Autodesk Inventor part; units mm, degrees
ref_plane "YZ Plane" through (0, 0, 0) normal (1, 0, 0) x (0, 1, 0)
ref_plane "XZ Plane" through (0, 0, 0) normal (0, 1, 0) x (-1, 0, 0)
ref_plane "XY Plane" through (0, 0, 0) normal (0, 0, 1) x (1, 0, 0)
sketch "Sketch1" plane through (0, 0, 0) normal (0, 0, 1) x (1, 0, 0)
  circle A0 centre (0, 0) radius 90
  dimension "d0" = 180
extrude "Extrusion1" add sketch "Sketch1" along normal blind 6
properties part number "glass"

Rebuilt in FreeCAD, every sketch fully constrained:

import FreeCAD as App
import Part
import Sketcher

doc = App.newDocument("Part")
params = doc.addObject("Spreadsheet::Sheet", "Params")
for row, (alias, value) in enumerate([
    ("sketch1_diameter", "180 mm"),
    ("pad1_length", "6 mm"),
], start=1):
    params.set(f"A{row}", alias)
    params.set(f"B{row}", "=" + value)
    params.setAlias(f"B{row}", alias)

body = doc.addObject("PartDesign::Body", "Body")

# Sketch on XY plane
sketch1 = doc.addObject("Sketcher::SketchObject", "Sketch")
body.addObject(sketch1)
sketch1.AttachmentSupport = (doc.XY_Plane, [""])
sketch1.MapMode = "FlatFace"
sketch1.addGeometry(Part.Circle(App.Vector(0, 0, 0), App.Vector(0, 0, 1), 90), False)
sketch1.addConstraint([
    Sketcher.Constraint("Coincident", 0, 3, -1, 1),
    Sketcher.Constraint("Diameter", 0, 180.0),
])
sketch1.setExpression("Constraints[1]", "Params.sketch1_diameter")
pad1 = doc.addObject("PartDesign::Pad", "Pad")
body.addObject(pad1)
pad1.Profile = sketch1
pad1.setExpression("Length", "Params.pad1_length")

doc.recompute()
